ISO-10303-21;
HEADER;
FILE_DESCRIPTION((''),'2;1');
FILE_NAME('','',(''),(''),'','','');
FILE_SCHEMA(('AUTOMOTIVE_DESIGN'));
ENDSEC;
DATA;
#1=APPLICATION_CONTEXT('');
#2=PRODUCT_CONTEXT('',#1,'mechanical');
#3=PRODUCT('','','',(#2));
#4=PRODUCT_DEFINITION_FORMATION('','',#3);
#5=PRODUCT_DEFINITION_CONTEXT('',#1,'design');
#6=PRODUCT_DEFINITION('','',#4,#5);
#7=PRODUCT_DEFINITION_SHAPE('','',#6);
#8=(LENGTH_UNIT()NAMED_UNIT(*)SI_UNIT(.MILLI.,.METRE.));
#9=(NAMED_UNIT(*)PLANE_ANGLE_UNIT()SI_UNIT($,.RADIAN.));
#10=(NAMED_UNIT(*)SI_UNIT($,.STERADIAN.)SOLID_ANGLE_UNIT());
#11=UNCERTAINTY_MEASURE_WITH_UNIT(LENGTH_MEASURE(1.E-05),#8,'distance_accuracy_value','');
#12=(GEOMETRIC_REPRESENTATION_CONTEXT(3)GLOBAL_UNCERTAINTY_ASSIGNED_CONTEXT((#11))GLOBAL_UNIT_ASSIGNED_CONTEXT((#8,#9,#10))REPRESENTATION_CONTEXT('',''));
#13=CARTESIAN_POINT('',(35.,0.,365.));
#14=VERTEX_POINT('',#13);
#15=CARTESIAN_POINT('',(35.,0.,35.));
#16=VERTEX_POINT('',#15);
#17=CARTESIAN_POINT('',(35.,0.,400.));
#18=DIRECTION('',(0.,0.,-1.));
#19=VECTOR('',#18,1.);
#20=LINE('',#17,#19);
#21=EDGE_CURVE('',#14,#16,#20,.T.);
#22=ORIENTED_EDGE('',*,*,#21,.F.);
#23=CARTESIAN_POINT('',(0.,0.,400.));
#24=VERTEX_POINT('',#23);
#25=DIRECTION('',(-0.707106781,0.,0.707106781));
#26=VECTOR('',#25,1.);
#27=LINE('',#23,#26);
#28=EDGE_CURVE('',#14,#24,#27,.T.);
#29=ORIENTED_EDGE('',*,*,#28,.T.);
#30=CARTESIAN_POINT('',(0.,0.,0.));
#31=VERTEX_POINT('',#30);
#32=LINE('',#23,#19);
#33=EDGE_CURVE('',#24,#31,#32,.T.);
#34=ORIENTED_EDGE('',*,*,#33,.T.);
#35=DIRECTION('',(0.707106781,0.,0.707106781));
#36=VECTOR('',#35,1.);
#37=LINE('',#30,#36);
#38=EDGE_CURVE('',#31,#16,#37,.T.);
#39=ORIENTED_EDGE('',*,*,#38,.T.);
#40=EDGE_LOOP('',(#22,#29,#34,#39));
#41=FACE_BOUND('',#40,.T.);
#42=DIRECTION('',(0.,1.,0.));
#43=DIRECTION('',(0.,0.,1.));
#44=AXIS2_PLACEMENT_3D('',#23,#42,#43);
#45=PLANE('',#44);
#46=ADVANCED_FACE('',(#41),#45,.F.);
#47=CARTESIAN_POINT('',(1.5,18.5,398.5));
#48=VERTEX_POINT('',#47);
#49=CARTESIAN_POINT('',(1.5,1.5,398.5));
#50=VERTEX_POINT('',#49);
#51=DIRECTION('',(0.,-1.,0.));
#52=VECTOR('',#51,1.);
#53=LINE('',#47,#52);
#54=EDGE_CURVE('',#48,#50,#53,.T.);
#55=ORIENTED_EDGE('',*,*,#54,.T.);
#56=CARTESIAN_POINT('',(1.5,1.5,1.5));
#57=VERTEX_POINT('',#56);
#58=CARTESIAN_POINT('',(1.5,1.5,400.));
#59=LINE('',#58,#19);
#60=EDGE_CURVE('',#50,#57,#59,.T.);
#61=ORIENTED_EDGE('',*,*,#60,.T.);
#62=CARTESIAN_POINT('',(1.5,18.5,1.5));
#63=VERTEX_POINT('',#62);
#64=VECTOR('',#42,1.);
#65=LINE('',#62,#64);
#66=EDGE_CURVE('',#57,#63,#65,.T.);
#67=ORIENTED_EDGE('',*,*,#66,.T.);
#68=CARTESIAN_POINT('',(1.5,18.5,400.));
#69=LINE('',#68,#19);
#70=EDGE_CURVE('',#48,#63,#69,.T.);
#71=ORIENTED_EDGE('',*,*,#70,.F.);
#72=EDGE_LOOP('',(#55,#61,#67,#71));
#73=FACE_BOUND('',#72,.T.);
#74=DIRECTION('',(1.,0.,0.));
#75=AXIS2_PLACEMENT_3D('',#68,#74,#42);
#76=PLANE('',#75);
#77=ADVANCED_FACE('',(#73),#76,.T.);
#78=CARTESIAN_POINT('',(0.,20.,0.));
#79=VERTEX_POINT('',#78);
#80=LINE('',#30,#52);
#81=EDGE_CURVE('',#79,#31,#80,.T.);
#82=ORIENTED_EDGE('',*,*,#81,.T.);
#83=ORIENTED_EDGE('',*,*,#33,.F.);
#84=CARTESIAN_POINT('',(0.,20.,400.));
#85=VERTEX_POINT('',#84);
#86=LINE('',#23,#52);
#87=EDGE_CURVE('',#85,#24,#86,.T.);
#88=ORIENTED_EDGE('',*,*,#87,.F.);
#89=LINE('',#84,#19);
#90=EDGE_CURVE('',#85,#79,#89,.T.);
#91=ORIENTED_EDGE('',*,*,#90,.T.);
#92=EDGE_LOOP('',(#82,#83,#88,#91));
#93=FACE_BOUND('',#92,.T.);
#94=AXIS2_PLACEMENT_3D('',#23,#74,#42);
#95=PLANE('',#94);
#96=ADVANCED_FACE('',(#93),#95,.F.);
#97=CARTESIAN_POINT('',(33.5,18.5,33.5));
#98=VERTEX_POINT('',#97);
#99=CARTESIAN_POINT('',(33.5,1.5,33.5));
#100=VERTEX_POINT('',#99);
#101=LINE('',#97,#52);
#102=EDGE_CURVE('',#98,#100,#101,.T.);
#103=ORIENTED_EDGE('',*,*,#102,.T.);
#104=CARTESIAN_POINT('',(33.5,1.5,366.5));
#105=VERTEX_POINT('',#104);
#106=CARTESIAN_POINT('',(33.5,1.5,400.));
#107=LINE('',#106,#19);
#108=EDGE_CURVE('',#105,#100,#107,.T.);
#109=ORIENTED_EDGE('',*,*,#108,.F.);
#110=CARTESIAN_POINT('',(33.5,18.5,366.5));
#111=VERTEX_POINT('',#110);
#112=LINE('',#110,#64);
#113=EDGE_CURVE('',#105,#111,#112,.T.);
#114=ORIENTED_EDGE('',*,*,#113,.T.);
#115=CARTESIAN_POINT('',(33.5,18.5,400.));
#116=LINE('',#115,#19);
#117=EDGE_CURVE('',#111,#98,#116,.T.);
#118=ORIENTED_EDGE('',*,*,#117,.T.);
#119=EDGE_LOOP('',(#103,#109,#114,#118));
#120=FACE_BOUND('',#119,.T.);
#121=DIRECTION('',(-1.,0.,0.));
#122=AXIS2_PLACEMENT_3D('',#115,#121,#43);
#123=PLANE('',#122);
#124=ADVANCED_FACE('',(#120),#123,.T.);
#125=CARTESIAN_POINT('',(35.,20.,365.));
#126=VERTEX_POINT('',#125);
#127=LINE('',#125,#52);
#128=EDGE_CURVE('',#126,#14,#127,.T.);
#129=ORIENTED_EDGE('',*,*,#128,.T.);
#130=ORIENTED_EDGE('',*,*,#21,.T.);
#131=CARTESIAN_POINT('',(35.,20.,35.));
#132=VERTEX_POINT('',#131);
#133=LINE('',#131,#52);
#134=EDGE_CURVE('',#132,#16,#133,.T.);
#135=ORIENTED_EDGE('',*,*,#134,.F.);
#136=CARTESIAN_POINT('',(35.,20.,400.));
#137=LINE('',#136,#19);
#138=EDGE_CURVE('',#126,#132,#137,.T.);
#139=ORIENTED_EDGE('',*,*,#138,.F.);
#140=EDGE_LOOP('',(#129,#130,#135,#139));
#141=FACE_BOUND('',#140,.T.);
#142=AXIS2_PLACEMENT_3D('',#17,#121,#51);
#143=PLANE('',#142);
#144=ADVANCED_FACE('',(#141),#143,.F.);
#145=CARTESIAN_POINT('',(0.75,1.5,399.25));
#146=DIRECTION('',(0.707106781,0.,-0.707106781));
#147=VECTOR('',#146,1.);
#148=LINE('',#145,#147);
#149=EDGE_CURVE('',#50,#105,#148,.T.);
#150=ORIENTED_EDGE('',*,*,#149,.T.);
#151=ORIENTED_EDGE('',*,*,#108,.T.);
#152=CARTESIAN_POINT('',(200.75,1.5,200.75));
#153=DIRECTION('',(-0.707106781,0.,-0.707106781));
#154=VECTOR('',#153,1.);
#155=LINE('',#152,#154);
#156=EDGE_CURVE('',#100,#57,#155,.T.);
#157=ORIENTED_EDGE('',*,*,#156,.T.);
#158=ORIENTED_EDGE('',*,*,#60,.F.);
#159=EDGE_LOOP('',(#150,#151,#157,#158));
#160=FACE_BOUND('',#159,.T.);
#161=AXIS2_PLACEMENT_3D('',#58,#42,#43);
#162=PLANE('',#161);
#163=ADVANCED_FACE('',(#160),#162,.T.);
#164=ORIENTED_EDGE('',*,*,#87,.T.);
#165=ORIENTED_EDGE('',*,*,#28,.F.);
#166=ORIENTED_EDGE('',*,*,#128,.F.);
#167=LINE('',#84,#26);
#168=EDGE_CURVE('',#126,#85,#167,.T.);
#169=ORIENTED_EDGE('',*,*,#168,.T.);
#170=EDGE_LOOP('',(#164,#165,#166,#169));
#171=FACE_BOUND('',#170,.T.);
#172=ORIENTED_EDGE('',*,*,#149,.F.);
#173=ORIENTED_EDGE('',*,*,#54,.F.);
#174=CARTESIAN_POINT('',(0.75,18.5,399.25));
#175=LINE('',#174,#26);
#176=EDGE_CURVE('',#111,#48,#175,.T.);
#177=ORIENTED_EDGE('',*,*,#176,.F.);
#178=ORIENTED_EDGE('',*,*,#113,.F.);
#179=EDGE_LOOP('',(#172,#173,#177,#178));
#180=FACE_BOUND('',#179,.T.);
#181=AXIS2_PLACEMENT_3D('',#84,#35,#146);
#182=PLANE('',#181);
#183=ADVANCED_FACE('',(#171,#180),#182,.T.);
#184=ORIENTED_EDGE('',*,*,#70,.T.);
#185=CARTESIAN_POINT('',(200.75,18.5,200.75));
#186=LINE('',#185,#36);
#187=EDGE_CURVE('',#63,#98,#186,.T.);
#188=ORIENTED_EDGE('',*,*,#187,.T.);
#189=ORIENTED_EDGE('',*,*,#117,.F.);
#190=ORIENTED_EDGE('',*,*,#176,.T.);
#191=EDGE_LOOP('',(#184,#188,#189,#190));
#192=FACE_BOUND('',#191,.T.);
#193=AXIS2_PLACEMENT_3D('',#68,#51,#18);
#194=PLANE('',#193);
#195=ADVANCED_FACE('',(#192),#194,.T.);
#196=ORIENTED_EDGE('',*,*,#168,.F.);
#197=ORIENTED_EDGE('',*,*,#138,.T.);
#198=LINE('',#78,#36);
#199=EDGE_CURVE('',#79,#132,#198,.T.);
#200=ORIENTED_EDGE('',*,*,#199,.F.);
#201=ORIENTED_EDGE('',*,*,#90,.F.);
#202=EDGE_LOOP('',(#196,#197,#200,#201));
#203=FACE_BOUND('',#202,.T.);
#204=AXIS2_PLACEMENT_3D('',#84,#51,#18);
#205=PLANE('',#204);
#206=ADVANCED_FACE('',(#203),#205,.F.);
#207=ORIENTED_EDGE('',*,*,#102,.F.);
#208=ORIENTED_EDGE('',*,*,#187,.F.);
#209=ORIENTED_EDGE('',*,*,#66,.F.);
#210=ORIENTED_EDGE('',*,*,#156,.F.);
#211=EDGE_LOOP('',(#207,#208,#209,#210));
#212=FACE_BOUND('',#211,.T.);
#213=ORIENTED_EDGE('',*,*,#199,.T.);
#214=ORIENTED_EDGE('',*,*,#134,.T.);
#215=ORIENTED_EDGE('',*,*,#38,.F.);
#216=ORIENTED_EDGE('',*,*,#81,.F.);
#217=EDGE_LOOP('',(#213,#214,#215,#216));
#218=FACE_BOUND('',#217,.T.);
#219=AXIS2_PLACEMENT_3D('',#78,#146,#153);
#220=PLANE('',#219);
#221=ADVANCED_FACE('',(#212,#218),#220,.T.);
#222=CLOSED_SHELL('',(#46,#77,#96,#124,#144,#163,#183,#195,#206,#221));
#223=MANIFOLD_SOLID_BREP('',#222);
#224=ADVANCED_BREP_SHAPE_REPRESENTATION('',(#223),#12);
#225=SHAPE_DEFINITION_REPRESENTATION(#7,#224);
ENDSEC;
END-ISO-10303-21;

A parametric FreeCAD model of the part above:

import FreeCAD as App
import Part
import Sketcher

V = App.Vector

doc = App.newDocument("Part")
body = doc.addObject("PartDesign::Body", "Body")

sketch1 = body.newObject("Sketcher::SketchObject", "Sketch")
sketch1.AttachmentSupport = (doc.getObject("XY_Plane"), [""])
sketch1.MapMode = "FlatFace"
sketch1.addGeometry([
    Part.LineSegment(V(0, 20, 0), V(0, 0, 0)),
    Part.LineSegment(V(0, 0, 0), V(35, 0, 0)),
    Part.LineSegment(V(35, 0, 0), V(35, 20, 0)),
    Part.LineSegment(V(35, 20, 0), V(0, 20, 0)),
    Part.LineSegment(V(34, 2, 0), V(2, 2, 0)),
    Part.LineSegment(V(2, 2, 0), V(2, 18, 0)),
    Part.LineSegment(V(2, 18, 0), V(34, 18, 0)),
    Part.LineSegment(V(34, 18, 0), V(34, 2, 0)),
], False)
sketch1.addConstraint([
    Sketcher.Constraint("Coincident", 0, 2, 1, 1),
    Sketcher.Constraint("Coincident", 1, 2, 2, 1),
    Sketcher.Constraint("Coincident", 2, 2, 3, 1),
    Sketcher.Constraint("Coincident", 3, 2, 0, 1),
    Sketcher.Constraint("Coincident", 4, 2, 5, 1),
    Sketcher.Constraint("Coincident", 5, 2, 6, 1),
    Sketcher.Constraint("Coincident", 6, 2, 7, 1),
    Sketcher.Constraint("Coincident", 7, 2, 4, 1),
    Sketcher.Constraint("Vertical", 0),
    Sketcher.Constraint("Horizontal", 1),
    Sketcher.Constraint("Vertical", 2),
    Sketcher.Constraint("Horizontal", 3),
    Sketcher.Constraint("Horizontal", 4),
    Sketcher.Constraint("Vertical", 5),
    Sketcher.Constraint("Horizontal", 6),
    Sketcher.Constraint("Vertical", 7),
    Sketcher.Constraint("Coincident", 0, 2, -1, 1),
    Sketcher.Constraint("DistanceX", 1, 1, 1, 2, 35.0),
    Sketcher.Constraint("DistanceX", 4, 2, 4, 1, 32.0),
    Sketcher.Constraint("DistanceY", 0, 2, 0, 1, 20.0),
    Sketcher.Constraint("DistanceY", 5, 1, 5, 2, 17.0),
    Sketcher.Constraint("DistanceX", -1, 1, 4, 2, 1.5),
    Sketcher.Constraint("DistanceY", -1, 1, 4, 2, 1.5),
])
pad1 = body.newObject("PartDesign::Pad", "Pad")
pad1.Profile = sketch1
pad1.Length = 400

sketch2 = body.newObject("Sketcher::SketchObject", "Sketch001")
sketch2.AttachmentSupport = (doc.getObject("XZ_Plane"), [""])
sketch2.MapMode = "FlatFace"
sketch2.addGeometry([
    Part.LineSegment(V(35, 365, 0), V(0, 400, 0)),
    Part.LineSegment(V(0, 400, 0), V(35, 400, 0)),
    Part.LineSegment(V(35, 400, 0), V(35, 365, 0)),
], False)
sketch2.addConstraint([
    Sketcher.Constraint("Coincident", 0, 2, 1, 1),
    Sketcher.Constraint("Coincident", 1, 2, 2, 1),
    Sketcher.Constraint("Coincident", 2, 2, 0, 1),
    Sketcher.Constraint("Horizontal", 1),
    Sketcher.Constraint("Vertical", 2),
    Sketcher.Constraint("PointOnObject", 0, 2, -2),
    Sketcher.Constraint("Equal", 1, 2),
    Sketcher.Constraint("DistanceX", 1, 1, 1, 2, 35.0),
    Sketcher.Constraint("DistanceY", -1, 1, 0, 2, 400.0),
])
pocket1 = body.newObject("PartDesign::Pocket", "Pocket")
pocket1.Profile = sketch2
pocket1.Type = "ThroughAll"

sketch3 = body.newObject("Sketcher::SketchObject", "Sketch002")
sketch3.AttachmentSupport = (doc.getObject("XZ_Plane"), [""])
sketch3.MapMode = "FlatFace"
sketch3.addGeometry([
    Part.LineSegment(V(0, 0, 0), V(35, 35, 0)),
    Part.LineSegment(V(35, 35, 0), V(35, 0, 0)),
    Part.LineSegment(V(35, 0, 0), V(0, 0, 0)),
], False)
sketch3.addConstraint([
    Sketcher.Constraint("Coincident", 0, 2, 1, 1),
    Sketcher.Constraint("Coincident", 1, 2, 2, 1),
    Sketcher.Constraint("Coincident", 2, 2, 0, 1),
    Sketcher.Constraint("Vertical", 1),
    Sketcher.Constraint("Horizontal", 2),
    Sketcher.Constraint("Coincident", 2, 2, -1, 1),
    Sketcher.Constraint("Equal", 2, 1),
    Sketcher.Constraint("DistanceX", 2, 2, 2, 1, 35.0),
])
pocket2 = body.newObject("PartDesign::Pocket", "Pocket001")
pocket2.Profile = sketch3
pocket2.Type = "ThroughAll"

doc.recompute()
